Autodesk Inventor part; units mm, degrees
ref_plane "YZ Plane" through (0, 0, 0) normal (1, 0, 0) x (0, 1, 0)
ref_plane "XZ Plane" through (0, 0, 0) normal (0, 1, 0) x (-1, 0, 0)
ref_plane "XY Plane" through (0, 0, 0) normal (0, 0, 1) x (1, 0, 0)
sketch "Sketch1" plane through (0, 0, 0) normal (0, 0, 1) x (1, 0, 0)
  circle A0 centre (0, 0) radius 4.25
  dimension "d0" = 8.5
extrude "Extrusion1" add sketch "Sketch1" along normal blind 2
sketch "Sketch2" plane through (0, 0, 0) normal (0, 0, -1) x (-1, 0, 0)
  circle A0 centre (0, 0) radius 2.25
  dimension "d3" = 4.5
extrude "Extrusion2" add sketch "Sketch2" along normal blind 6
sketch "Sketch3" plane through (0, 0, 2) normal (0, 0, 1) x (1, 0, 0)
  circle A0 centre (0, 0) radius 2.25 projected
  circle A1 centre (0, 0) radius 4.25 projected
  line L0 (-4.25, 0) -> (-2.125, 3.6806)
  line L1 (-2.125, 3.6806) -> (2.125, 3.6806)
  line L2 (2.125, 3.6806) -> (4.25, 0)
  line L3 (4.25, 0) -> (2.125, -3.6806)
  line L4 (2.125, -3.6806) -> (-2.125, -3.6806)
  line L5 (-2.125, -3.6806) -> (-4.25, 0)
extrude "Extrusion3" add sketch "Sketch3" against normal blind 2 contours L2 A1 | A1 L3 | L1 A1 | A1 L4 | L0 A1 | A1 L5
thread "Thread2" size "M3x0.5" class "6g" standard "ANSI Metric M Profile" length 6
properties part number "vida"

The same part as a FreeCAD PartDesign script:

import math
import FreeCAD as App
import Part
import Sketcher

V = App.Vector
Q = App.Units.Quantity

doc = App.newDocument("Part")
params = doc.addObject("Spreadsheet::Sheet", "Params")
for row, (alias, value) in enumerate([
    ("sketch1_diameter", "8.5 mm"),
    ("pad1_length", "2 mm"),
    ("sketch2_diameter", "4.5 mm"),
    ("pad2_length", "6 mm"),
    ("sketch3_radius", "4.25 mm"),
    ("pad3_length", "2 mm"),
], start=1):
    params.set(f"A{row}", alias)
    params.set(f"B{row}", "=" + value)
    params.setAlias(f"B{row}", alias)

body = doc.addObject("PartDesign::Body", "Body")

# Sketch on XY plane
sketch1 = body.newObject("Sketcher::SketchObject", "Sketch")
sketch1.AttachmentSupport = (doc.getObject("XY_Plane"), [""])
sketch1.MapMode = "FlatFace"
sketch1.addGeometry(Part.Circle(V(0, 0, 0), V(0, 0, 1), 4.2), False)
sketch1.addConstraint(Sketcher.Constraint("Coincident", 0, 3, -1, 1))
sketch1.addConstraint(Sketcher.Constraint("Diameter", 0, Q("8.5 mm")))
sketch1.setExpression("Constraints[1]", "Params.sketch1_diameter")
pad1 = body.newObject("PartDesign::Pad", "Pad")
pad1.Profile = sketch1
pad1.setExpression("Length", "Params.pad1_length")

# Sketch on XY plane
sketch2 = body.newObject("Sketcher::SketchObject", "Sketch001")
sketch2.AttachmentSupport = (doc.getObject("XY_Plane"), [""])
sketch2.MapMode = "FlatFace"
sketch2.addGeometry(Part.Circle(V(0, 0, 0), V(0, 0, 1), 2.2), False)
sketch2.addConstraint(Sketcher.Constraint("Coincident", 0, 3, -1, 1))
sketch2.addConstraint(Sketcher.Constraint("Diameter", 0, Q("4.5 mm")))
sketch2.setExpression("Constraints[1]", "Params.sketch2_diameter")
pad2 = body.newObject("PartDesign::Pad", "Pad001")
pad2.Profile = sketch2
pad2.setExpression("Length", "Params.pad2_length")
pad2.Reversed = True

# Sketch on XY plane
sketch3 = body.newObject("Sketcher::SketchObject", "Sketch002")
sketch3.AttachmentSupport = (doc.getObject("XY_Plane"), [""])
sketch3.MapMode = "FlatFace"
sketch3.AttachmentOffset = App.Placement(V(0, 0, 2), App.Rotation())
sketch3.addGeometry(Part.LineSegment(V(2.1, 3.7, 0), V(4.2, 0, 0)), False)
sketch3.addGeometry(Part.ArcOfCircle(Part.Circle(V(0, 0, 0), V(0, 0, 1), 4.2), math.radians(0), math.radians(60)), False)
sketch3.addGeometry(Part.ArcOfCircle(Part.Circle(V(0, 0, 0), V(0, 0, 1), 4.2), math.radians(-60), math.radians(0)), False)
sketch3.addGeometry(Part.LineSegment(V(4.2, 0, 0), V(2.1, -3.7, 0)), False)
sketch3.addGeometry(Part.LineSegment(V(-2.1, 3.7, 0), V(2.1, 3.7, 0)), False)
sketch3.addGeometry(Part.ArcOfCircle(Part.Circle(V(0, 0, 0), V(0, 0, 1), 4.2), math.radians(60), math.radians(120)), False)
sketch3.addGeometry(Part.ArcOfCircle(Part.Circle(V(0, 0, 0), V(0, 0, 1), 4.2), math.radians(-120), math.radians(-60)), False)
sketch3.addGeometry(Part.LineSegment(V(-2.1, -3.7, 0), V(2.1, -3.7, 0)), False)
sketch3.addGeometry(Part.LineSegment(V(-4.2, 0, 0), V(-2.1, 3.7, 0)), False)
sketch3.addGeometry(Part.ArcOfCircle(Part.Circle(V(0, 0, 0), V(0, 0, 1), 4.2), math.radians(120), math.radians(180)), False)
sketch3.addGeometry(Part.ArcOfCircle(Part.Circle(V(0, 0, 0), V(0, 0, 1), 4.2), math.radians(180), math.radians(240)), False)
sketch3.addGeometry(Part.LineSegment(V(-4.2, 0, 0), V(-2.1, -3.7, 0)), False)
sketch3.addConstraint(Sketcher.Constraint("Coincident", 0, 1, 1, 2))
sketch3.addConstraint(Sketcher.Constraint("Coincident", 1, 1, 0, 2))
sketch3.addConstraint(Sketcher.Constraint("Coincident", 2, 1, 3, 2))
sketch3.addConstraint(Sketcher.Constraint("Coincident", 3, 1, 2, 2))
sketch3.addConstraint(Sketcher.Constraint("Coincident", 4, 1, 5, 2))
sketch3.addConstraint(Sketcher.Constraint("Coincident", 5, 1, 4, 2))
sketch3.addConstraint(Sketcher.Constraint("Coincident", 6, 1, 7, 1))
sketch3.addConstraint(Sketcher.Constraint("Coincident", 7, 2, 6, 2))
sketch3.addConstraint(Sketcher.Constraint("Coincident", 8, 1, 9, 2))
sketch3.addConstraint(Sketcher.Constraint("Coincident", 9, 1, 8, 2))
sketch3.addConstraint(Sketcher.Constraint("Coincident", 10, 1, 11, 1))
sketch3.addConstraint(Sketcher.Constraint("Coincident", 11, 2, 10, 2))
sketch3.addConstraint(Sketcher.Constraint("Horizontal", 4))
sketch3.addConstraint(Sketcher.Constraint("Horizontal", 7))
sketch3.addConstraint(Sketcher.Constraint("Coincident", 1, 3, -1, 1))
sketch3.addConstraint(Sketcher.Constraint("Coincident", 2, 3, -1, 1))
sketch3.addConstraint(Sketcher.Constraint("Coincident", 5, 3, -1, 1))
sketch3.addConstraint(Sketcher.Constraint("Coincident", 6, 3, -1, 1))
sketch3.addConstraint(Sketcher.Constraint("Coincident", 9, 3, -1, 1))
sketch3.addConstraint(Sketcher.Constraint("Coincident", 10, 3, -1, 1))
sketch3.addConstraint(Sketcher.Constraint("Coincident", 3, 1, 1, 1))
sketch3.addConstraint(Sketcher.Constraint("Coincident", 5, 1, 0, 1))
sketch3.addConstraint(Sketcher.Constraint("Coincident", 7, 2, 2, 1))
sketch3.addConstraint(Sketcher.Constraint("Coincident", 9, 1, 4, 1))
sketch3.addConstraint(Sketcher.Constraint("Coincident", 10, 1, 8, 1))
sketch3.addConstraint(Sketcher.Constraint("PointOnObject", 1, 1, -1))
sketch3.addConstraint(Sketcher.Constraint("PointOnObject", 8, 1, -1))
sketch3.addConstraint(Sketcher.Constraint("Parallel", 3, 8))
sketch3.addConstraint(Sketcher.Constraint("Parallel", 0, 11))
sketch3.addConstraint(Sketcher.Constraint("Angle", 0, Q("-60 deg")))
sketch3.addConstraint(Sketcher.Constraint("Radius", 1, Q("4.25 mm")))
sketch3.setExpression("Constraints[30]", "Params.sketch3_radius")
pad3 = body.newObject("PartDesign::Pad", "Pad002")
pad3.Profile = sketch3
pad3.setExpression("Length", "Params.pad3_length")
pad3.Reversed = True

doc.recompute()
